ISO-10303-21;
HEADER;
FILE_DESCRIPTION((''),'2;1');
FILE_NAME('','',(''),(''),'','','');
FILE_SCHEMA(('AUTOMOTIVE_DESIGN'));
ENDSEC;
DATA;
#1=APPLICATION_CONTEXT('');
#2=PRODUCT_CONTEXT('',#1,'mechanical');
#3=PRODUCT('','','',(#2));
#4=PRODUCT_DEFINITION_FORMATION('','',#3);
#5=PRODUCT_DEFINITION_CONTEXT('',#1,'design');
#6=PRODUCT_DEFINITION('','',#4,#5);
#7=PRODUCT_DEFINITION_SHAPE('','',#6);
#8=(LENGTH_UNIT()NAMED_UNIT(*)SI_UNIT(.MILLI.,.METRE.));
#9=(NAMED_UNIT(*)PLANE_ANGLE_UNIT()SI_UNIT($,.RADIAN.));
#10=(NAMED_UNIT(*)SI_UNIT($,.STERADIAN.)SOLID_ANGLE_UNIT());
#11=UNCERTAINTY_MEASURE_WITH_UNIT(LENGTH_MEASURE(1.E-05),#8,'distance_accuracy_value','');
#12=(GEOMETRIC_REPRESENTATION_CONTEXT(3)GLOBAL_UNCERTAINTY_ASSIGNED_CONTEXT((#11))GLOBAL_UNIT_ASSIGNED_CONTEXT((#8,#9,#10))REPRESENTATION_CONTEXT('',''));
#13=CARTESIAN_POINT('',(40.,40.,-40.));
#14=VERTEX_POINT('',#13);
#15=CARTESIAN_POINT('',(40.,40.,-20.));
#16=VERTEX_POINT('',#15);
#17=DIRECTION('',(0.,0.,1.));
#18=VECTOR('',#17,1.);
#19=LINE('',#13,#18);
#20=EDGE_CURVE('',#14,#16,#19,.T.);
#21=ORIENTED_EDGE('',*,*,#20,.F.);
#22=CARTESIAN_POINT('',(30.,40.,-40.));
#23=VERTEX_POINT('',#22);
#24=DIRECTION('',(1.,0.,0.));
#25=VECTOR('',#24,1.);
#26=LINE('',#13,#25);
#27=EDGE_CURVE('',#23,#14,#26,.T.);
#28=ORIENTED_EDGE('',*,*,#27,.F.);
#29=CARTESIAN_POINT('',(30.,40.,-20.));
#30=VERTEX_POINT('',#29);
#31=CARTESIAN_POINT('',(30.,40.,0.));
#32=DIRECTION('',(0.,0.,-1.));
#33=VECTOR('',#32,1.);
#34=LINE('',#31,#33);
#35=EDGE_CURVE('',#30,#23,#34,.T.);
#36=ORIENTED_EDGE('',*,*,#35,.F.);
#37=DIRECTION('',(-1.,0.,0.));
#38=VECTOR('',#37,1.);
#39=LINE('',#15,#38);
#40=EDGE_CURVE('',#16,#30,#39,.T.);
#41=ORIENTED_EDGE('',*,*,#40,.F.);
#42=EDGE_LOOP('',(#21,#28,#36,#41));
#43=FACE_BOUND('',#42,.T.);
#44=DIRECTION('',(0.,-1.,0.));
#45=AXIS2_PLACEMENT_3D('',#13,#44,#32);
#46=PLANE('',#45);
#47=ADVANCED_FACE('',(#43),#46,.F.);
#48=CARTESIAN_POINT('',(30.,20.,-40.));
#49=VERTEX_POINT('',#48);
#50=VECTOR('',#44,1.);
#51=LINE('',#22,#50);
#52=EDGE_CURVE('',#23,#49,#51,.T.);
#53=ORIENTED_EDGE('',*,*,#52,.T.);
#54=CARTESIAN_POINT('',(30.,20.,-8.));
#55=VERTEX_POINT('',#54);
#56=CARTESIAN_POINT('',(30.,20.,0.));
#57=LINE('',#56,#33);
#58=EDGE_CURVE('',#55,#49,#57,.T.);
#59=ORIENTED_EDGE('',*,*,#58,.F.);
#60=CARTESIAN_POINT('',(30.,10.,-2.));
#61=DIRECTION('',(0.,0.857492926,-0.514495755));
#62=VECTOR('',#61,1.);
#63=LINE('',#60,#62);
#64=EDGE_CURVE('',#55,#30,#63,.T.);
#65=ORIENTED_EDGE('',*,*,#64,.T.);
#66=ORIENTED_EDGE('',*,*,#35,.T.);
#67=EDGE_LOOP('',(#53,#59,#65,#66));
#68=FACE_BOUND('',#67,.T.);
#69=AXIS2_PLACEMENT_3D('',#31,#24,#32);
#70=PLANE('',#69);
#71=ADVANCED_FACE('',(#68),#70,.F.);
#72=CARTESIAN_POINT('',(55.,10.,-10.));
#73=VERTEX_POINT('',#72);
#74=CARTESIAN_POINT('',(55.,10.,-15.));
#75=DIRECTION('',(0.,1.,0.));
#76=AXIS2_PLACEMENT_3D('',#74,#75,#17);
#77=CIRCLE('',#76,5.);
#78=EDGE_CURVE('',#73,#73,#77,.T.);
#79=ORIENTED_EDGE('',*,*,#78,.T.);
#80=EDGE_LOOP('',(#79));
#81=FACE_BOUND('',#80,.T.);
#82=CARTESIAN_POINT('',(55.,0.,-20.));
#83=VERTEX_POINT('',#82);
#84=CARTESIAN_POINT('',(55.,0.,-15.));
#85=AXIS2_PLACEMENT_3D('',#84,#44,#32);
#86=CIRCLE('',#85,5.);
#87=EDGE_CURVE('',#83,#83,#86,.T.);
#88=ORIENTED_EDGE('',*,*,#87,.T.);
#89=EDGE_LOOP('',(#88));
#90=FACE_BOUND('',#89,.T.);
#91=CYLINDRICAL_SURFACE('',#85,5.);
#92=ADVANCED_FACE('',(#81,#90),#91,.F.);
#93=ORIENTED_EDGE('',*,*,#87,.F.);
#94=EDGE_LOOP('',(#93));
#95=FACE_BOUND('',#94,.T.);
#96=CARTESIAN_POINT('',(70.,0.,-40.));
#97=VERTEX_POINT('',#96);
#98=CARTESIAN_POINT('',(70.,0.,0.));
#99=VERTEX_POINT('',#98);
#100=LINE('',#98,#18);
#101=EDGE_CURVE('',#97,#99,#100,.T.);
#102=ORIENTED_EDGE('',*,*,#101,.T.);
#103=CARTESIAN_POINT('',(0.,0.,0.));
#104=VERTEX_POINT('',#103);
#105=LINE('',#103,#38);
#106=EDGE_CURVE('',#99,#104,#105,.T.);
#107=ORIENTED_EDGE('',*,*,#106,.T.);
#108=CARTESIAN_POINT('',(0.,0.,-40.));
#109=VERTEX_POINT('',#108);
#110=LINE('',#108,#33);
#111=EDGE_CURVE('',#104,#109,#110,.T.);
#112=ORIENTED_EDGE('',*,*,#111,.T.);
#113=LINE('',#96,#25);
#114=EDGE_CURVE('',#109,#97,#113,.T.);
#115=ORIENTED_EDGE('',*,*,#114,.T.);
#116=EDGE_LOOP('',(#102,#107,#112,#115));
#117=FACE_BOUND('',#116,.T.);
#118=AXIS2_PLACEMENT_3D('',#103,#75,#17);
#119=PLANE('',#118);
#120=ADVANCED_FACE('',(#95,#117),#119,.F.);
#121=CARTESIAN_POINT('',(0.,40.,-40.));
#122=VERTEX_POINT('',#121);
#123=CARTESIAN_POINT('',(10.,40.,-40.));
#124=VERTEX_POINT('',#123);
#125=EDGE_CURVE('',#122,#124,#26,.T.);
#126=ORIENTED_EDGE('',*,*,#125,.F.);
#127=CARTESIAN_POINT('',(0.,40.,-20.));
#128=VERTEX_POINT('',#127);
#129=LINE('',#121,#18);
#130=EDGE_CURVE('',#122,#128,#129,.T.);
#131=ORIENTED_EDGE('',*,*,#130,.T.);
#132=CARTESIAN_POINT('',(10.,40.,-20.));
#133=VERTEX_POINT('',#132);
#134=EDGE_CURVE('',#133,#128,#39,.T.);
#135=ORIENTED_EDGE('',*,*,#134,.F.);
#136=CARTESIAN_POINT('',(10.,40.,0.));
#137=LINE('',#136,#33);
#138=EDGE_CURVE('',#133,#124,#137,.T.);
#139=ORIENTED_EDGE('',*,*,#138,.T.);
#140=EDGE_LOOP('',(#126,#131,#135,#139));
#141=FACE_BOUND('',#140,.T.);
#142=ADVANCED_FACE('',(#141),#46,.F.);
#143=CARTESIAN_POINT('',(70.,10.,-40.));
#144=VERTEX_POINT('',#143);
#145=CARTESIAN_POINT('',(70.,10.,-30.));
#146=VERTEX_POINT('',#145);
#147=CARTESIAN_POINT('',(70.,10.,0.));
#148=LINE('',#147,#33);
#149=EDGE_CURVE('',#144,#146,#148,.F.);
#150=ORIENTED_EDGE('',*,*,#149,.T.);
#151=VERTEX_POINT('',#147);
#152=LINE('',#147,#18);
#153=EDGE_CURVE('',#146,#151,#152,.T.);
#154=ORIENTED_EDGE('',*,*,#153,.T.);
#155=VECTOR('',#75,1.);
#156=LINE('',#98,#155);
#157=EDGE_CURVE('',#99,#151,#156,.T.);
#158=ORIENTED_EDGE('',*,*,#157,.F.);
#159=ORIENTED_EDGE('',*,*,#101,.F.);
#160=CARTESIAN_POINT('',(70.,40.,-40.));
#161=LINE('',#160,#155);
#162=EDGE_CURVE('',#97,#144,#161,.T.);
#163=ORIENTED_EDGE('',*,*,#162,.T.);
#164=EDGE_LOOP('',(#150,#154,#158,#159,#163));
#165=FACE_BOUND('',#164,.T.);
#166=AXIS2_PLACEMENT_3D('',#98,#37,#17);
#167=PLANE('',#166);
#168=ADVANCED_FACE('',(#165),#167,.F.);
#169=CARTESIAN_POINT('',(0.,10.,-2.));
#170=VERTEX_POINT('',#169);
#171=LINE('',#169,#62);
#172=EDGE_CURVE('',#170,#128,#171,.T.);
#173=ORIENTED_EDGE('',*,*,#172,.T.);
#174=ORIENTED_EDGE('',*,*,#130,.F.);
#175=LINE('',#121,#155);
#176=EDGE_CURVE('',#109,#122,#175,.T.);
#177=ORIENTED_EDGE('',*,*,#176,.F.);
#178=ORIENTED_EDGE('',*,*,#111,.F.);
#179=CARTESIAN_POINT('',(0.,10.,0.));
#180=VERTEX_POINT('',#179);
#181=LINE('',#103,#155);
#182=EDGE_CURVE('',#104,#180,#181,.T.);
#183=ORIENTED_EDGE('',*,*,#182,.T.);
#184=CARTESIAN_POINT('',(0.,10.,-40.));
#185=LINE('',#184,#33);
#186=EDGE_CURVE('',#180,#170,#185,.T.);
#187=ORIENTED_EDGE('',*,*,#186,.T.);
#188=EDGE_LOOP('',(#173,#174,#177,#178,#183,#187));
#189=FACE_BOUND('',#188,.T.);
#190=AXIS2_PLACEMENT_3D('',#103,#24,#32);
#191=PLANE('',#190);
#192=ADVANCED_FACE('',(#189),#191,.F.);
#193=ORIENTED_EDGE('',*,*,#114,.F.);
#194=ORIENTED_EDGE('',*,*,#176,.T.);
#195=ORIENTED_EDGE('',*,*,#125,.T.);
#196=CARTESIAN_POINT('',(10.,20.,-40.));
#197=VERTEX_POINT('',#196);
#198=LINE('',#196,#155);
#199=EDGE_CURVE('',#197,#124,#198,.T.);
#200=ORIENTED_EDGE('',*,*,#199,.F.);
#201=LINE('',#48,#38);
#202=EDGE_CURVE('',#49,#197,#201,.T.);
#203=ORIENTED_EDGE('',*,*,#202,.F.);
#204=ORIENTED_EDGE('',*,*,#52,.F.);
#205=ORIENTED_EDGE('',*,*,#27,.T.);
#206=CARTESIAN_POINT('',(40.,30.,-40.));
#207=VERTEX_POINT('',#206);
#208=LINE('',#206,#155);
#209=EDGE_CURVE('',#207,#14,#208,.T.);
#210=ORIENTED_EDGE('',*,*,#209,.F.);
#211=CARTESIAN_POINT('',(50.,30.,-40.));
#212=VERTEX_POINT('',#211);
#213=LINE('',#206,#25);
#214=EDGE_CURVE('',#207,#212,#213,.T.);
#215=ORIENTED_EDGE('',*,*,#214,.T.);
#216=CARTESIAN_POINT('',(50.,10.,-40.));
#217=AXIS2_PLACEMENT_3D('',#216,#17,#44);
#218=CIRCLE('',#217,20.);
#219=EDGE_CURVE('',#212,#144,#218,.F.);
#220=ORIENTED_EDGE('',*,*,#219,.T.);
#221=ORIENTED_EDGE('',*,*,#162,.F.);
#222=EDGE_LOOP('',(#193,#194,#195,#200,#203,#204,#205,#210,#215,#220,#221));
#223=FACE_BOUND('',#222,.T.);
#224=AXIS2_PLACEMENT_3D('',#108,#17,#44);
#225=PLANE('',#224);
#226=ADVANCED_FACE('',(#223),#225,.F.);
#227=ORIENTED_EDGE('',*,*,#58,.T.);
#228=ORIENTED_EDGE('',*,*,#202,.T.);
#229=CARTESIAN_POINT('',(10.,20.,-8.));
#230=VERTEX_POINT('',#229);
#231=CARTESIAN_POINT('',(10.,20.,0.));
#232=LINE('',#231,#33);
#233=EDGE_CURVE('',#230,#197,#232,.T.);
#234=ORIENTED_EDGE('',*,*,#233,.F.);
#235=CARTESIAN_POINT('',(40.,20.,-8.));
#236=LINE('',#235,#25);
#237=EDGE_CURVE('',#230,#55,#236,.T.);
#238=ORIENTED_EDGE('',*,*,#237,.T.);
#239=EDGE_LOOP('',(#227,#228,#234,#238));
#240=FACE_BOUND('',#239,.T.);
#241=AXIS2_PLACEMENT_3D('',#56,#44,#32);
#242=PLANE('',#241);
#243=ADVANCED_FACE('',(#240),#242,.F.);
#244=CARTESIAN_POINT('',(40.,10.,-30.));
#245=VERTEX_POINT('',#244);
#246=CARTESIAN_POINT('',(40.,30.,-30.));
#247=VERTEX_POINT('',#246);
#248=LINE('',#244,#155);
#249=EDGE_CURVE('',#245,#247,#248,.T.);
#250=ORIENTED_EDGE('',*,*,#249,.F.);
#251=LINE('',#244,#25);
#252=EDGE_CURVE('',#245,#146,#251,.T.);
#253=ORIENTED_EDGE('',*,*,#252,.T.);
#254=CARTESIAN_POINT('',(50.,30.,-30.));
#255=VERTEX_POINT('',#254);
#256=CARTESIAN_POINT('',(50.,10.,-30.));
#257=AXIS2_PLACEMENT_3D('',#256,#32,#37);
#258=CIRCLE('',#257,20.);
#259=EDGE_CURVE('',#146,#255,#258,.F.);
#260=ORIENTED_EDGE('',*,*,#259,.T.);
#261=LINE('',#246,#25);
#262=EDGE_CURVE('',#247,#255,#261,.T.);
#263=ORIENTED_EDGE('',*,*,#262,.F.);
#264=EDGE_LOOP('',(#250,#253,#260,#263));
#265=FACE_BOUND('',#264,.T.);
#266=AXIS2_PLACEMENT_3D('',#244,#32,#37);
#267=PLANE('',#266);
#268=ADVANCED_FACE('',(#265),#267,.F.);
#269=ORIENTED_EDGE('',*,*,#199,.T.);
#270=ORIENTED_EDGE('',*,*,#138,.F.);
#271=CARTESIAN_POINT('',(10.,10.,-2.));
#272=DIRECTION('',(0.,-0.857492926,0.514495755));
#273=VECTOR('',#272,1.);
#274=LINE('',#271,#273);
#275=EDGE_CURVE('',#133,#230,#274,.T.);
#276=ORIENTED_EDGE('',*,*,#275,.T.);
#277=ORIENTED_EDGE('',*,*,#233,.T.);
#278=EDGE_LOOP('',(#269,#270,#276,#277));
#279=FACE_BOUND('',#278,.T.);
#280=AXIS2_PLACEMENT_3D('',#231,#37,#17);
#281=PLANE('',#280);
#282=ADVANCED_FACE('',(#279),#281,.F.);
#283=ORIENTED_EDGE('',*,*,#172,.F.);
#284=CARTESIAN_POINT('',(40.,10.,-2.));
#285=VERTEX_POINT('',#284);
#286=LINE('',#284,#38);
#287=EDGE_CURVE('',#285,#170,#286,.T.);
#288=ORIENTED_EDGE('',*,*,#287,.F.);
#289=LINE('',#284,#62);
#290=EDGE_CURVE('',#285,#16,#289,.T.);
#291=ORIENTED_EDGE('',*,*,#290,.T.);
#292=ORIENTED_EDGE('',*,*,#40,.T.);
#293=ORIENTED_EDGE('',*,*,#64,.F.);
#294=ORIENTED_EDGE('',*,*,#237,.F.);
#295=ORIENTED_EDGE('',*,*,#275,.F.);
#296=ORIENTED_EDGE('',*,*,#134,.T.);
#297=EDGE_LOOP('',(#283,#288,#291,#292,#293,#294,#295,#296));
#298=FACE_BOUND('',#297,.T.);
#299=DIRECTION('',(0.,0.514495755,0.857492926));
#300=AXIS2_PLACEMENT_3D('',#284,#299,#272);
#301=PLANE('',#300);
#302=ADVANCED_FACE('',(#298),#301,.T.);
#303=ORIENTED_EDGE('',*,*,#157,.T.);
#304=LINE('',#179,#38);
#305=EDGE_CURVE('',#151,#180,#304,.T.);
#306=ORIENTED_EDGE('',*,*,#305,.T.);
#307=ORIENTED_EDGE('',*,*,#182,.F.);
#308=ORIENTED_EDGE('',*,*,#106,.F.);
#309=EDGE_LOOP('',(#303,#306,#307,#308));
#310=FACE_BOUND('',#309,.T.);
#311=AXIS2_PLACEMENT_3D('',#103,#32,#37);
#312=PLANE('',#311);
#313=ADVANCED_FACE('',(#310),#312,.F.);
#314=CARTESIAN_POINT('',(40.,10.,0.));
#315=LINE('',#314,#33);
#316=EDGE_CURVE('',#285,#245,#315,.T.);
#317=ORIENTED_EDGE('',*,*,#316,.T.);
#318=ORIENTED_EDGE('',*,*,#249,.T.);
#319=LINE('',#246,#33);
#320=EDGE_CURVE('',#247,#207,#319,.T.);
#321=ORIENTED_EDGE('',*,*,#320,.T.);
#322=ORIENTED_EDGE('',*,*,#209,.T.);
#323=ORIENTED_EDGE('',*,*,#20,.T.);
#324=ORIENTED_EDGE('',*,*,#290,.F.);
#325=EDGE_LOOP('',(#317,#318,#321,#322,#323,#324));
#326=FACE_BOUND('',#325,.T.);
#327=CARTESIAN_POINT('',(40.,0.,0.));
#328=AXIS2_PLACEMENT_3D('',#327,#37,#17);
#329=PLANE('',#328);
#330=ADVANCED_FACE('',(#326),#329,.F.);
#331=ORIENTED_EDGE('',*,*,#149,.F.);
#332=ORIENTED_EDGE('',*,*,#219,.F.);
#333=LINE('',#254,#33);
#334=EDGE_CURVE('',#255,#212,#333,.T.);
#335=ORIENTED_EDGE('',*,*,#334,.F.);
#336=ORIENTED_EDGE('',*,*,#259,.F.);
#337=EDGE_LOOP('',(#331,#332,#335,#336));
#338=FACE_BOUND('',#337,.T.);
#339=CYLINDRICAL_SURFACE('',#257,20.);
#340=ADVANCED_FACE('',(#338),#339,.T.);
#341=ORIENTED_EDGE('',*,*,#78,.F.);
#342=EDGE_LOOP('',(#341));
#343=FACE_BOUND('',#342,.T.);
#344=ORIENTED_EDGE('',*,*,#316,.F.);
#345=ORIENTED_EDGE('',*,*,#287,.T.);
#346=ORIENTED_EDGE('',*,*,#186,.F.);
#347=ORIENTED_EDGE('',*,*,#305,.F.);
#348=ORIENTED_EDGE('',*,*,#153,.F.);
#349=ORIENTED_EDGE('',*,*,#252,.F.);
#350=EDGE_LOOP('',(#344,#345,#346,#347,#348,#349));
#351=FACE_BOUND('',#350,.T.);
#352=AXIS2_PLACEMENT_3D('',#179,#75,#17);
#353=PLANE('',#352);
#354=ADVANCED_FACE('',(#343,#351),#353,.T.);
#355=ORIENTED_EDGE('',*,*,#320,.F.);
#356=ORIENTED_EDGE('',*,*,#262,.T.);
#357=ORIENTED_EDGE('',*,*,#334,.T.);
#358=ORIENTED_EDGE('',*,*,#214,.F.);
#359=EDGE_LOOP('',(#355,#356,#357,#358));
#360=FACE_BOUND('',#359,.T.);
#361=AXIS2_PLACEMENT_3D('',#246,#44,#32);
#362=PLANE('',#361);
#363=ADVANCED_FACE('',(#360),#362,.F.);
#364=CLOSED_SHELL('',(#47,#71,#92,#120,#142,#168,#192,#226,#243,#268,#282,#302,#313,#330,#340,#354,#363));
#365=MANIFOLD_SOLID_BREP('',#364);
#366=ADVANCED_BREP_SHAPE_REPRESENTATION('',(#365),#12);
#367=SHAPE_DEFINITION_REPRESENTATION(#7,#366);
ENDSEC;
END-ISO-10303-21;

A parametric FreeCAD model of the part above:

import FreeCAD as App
import Part
import Sketcher

V = App.Vector
Q = App.Units.Quantity


def edges_at(feature, points):
    """Names of the edges that pass closest to the given points."""
    edges = feature.Shape.Edges
    near = lambda p: min(range(len(edges)), key=lambda i: edges[i].distToShape(Part.Vertex(*p))[0])
    return sorted({f"Edge{near(p) + 1}" for p in points})

doc = App.newDocument("Part")
body = doc.addObject("PartDesign::Body", "Body")

sketch1 = body.newObject("Sketcher::SketchObject", "Sketch")
sketch1.AttachmentSupport = (doc.getObject("YZ_Plane"), [""])
sketch1.MapMode = "FlatFace"
sketch1.addGeometry(Part.LineSegment(V(10, -2, 0), V(40, -20, 0)), False)
sketch1.addGeometry(Part.LineSegment(V(40, -20, 0), V(10, -20, 0)), False)
sketch1.addGeometry(Part.LineSegment(V(10, -20, 0), V(10, -2, 0)), False)
sketch1.addConstraint(Sketcher.Constraint("Coincident", 0, 2, 1, 1))
sketch1.addConstraint(Sketcher.Constraint("Coincident", 1, 2, 2, 1))
sketch1.addConstraint(Sketcher.Constraint("Coincident", 2, 2, 0, 1))
sketch1.addConstraint(Sketcher.Constraint("Horizontal", 1))
sketch1.addConstraint(Sketcher.Constraint("Vertical", 2))
sketch1.addConstraint(Sketcher.Constraint("DistanceX", 1, 2, 1, 1, Q("30 mm")))
sketch1.addConstraint(Sketcher.Constraint("DistanceY", 2, 1, 2, 2, Q("18 mm")))
sketch1.addConstraint(Sketcher.Constraint("DistanceX", -1, 1, 0, 2, Q("40 mm")))
sketch1.addConstraint(Sketcher.Constraint("DistanceY", 0, 2, -1, 1, Q("20 mm")))
pad1 = body.newObject("PartDesign::Pad", "Pad")
pad1.Profile = sketch1
pad1.Length = 40

sketch2 = body.newObject("Sketcher::SketchObject", "Sketch001")
sketch2.AttachmentSupport = (doc.getObject("XY_Plane"), [""])
sketch2.MapMode = "FlatFace"
sketch2.AttachmentOffset = App.Placement(V(0, 0, -20), App.Rotation())
sketch2.addGeometry(Part.LineSegment(V(40, 40, 0), V(40, 10, 0)), False)
sketch2.addGeometry(Part.LineSegment(V(40, 10, 0), V(0, 10, 0)), False)
sketch2.addGeometry(Part.LineSegment(V(0, 10, 0), V(0, 40, 0)), False)
sketch2.addGeometry(Part.LineSegment(V(0, 40, 0), V(40, 40, 0)), False)
sketch2.addConstraint(Sketcher.Constraint("Coincident", 0, 2, 1, 1))
sketch2.addConstraint(Sketcher.Constraint("Coincident", 1, 2, 2, 1))
sketch2.addConstraint(Sketcher.Constraint("Coincident", 2, 2, 3, 1))
sketch2.addConstraint(Sketcher.Constraint("Coincident", 3, 2, 0, 1))
sketch2.addConstraint(Sketcher.Constraint("Vertical", 0))
sketch2.addConstraint(Sketcher.Constraint("Horizontal", 1))
sketch2.addConstraint(Sketcher.Constraint("Vertical", 2))
sketch2.addConstraint(Sketcher.Constraint("Horizontal", 3))
sketch2.addConstraint(Sketcher.Constraint("PointOnObject", 1, 2, -2))
sketch2.addConstraint(Sketcher.Constraint("DistanceX", 1, 2, 1, 1, Q("40 mm")))
sketch2.addConstraint(Sketcher.Constraint("DistanceY", 0, 2, 0, 1, Q("30 mm")))
sketch2.addConstraint(Sketcher.Constraint("DistanceY", -1, 1, 0, 2, Q("10 mm")))
pad2 = body.newObject("PartDesign::Pad", "Pad001")
pad2.Profile = sketch2
pad2.Length = 20
pad2.Reversed = True

sketch3 = body.newObject("Sketcher::SketchObject", "Sketch002")
sketch3.AttachmentSupport = (doc.getObject("YZ_Plane"), [""])
sketch3.MapMode = "FlatFace"
sketch3.AttachmentOffset = App.Placement(V(0, 0, 40), App.Rotation())
sketch3.addGeometry(Part.LineSegment(V(10, 0, 0), V(10, -40, 0)), False)
sketch3.addGeometry(Part.LineSegment(V(10, -40, 0), V(40, -40, 0)), False)
sketch3.addGeometry(Part.LineSegment(V(40, -40, 0), V(40, -20, 0)), False)
sketch3.addGeometry(Part.LineSegment(V(40, -20, 0), V(10, 0, 0)), False)
sketch3.addConstraint(Sketcher.Constraint("Coincident", 0, 2, 1, 1))
sketch3.addConstraint(Sketcher.Constraint("Coincident", 1, 2, 2, 1))
sketch3.addConstraint(Sketcher.Constraint("Coincident", 2, 2, 3, 1))
sketch3.addConstraint(Sketcher.Constraint("Coincident", 3, 2, 0, 1))
sketch3.addConstraint(Sketcher.Constraint("Vertical", 0))
sketch3.addConstraint(Sketcher.Constraint("Horizontal", 1))
sketch3.addConstraint(Sketcher.Constraint("Vertical", 2))
sketch3.addConstraint(Sketcher.Constraint("PointOnObject", 3, 2, -1))
sketch3.addConstraint(Sketcher.Constraint("DistanceX", 1, 1, 1, 2, Q("30 mm")))
sketch3.addConstraint(Sketcher.Constraint("DistanceY", 0, 2, 0, 1, Q("40 mm")))
sketch3.addConstraint(Sketcher.Constraint("DistanceY", 2, 1, 2, 2, Q("20 mm")))
sketch3.addConstraint(Sketcher.Constraint("DistanceX", -1, 1, 0, 2, Q("10 mm")))
pad3 = body.newObject("PartDesign::Pad", "Pad002")
pad3.Profile = sketch3
pad3.Length = 30

sketch4 = body.newObject("Sketcher::SketchObject", "Sketch003")
sketch4.AttachmentSupport = (doc.getObject("YZ_Plane"), [""])
sketch4.MapMode = "FlatFace"
sketch4.AttachmentOffset = App.Placement(V(0, 0, 70), App.Rotation())
sketch4.addGeometry(Part.LineSegment(V(40, -20, 0), V(10, 0, 0)), False)
sketch4.addGeometry(Part.LineSegment(V(10, 0, 0), V(10, -30, 0)), False)
sketch4.addGeometry(Part.LineSegment(V(10, -30, 0), V(30, -30, 0)), False)
sketch4.addGeometry(Part.LineSegment(V(30, -30, 0), V(30, -40, 0)), False)
sketch4.addGeometry(Part.LineSegment(V(30, -40, 0), V(40, -40, 0)), False)
sketch4.addGeometry(Part.LineSegment(V(40, -40, 0), V(40, -20, 0)), False)
sketch4.addConstraint(Sketcher.Constraint("Coincident", 0, 2, 1, 1))
sketch4.addConstraint(Sketcher.Constraint("Coincident", 1, 2, 2, 1))
sketch4.addConstraint(Sketcher.Constraint("Coincident", 2, 2, 3, 1))
sketch4.addConstraint(Sketcher.Constraint("Coincident", 3, 2, 4, 1))
sketch4.addConstraint(Sketcher.Constraint("Coincident", 4, 2, 5, 1))
sketch4.addConstraint(Sketcher.Constraint("Coincident", 5, 2, 0, 1))
sketch4.addConstraint(Sketcher.Constraint("Vertical", 1))
sketch4.addConstraint(Sketcher.Constraint("Horizontal", 2))
sketch4.addConstraint(Sketcher.Constraint("Vertical", 3))
sketch4.addConstraint(Sketcher.Constraint("Horizontal", 4))
sketch4.addConstraint(Sketcher.Constraint("Vertical", 5))
sketch4.addConstraint(Sketcher.Constraint("PointOnObject", 0, 2, -1))
sketch4.addConstraint(Sketcher.Constraint("Equal", 4, 3))
sketch4.addConstraint(Sketcher.Constraint("Equal", 2, 5))
sketch4.addConstraint(Sketcher.Constraint("DistanceX", 2, 1, 2, 2, Q("20 mm")))
sketch4.addConstraint(Sketcher.Constraint("DistanceX", 4, 1, 4, 2, Q("10 mm")))
sketch4.addConstraint(Sketcher.Constraint("DistanceY", 1, 2, 1, 1, Q("30 mm")))
sketch4.addConstraint(Sketcher.Constraint("DistanceX", -1, 1, 0, 2, Q("10 mm")))
pocket1 = body.newObject("PartDesign::Pocket", "Pocket")
pocket1.Profile = sketch4
pocket1.Length = 30

sketch5 = body.newObject("Sketcher::SketchObject", "Sketch004")
sketch5.AttachmentSupport = (doc.getObject("XZ_Plane"), [""])
sketch5.MapMode = "FlatFace"
sketch5.AttachmentOffset = App.Placement(V(0, 0, -10), App.Rotation())
sketch5.addGeometry(Part.LineSegment(V(0, 0, 0), V(0, -40, 0)), False)
sketch5.addGeometry(Part.LineSegment(V(0, -40, 0), V(70, -40, 0)), False)
sketch5.addGeometry(Part.LineSegment(V(70, -40, 0), V(70, 0, 0)), False)
sketch5.addGeometry(Part.LineSegment(V(70, 0, 0), V(0, 0, 0)), False)
sketch5.addConstraint(Sketcher.Constraint("Coincident", 0, 2, 1, 1))
sketch5.addConstraint(Sketcher.Constraint("Coincident", 1, 2, 2, 1))
sketch5.addConstraint(Sketcher.Constraint("Coincident", 2, 2, 3, 1))
sketch5.addConstraint(Sketcher.Constraint("Coincident", 3, 2, 0, 1))
sketch5.addConstraint(Sketcher.Constraint("Vertical", 0))
sketch5.addConstraint(Sketcher.Constraint("Horizontal", 1))
sketch5.addConstraint(Sketcher.Constraint("Vertical", 2))
sketch5.addConstraint(Sketcher.Constraint("Horizontal", 3))
sketch5.addConstraint(Sketcher.Constraint("Coincident", 3, 2, -1, 1))
sketch5.addConstraint(Sketcher.Constraint("DistanceX", 1, 1, 1, 2, Q("70 mm")))
sketch5.addConstraint(Sketcher.Constraint("DistanceY", 0, 2, 0, 1, Q("40 mm")))
pad4 = body.newObject("PartDesign::Pad", "Pad003")
pad4.Profile = sketch5
pad4.Length = 10

sketch6 = body.newObject("Sketcher::SketchObject", "Sketch005")
sketch6.AttachmentSupport = (doc.getObject("XY_Plane"), [""])
sketch6.MapMode = "FlatFace"
sketch6.AttachmentOffset = App.Placement(V(0, 0, -40), App.Rotation())
sketch6.addGeometry(Part.LineSegment(V(30, 40, 0), V(30, 20, 0)), False)
sketch6.addGeometry(Part.LineSegment(V(30, 20, 0), V(10, 20, 0)), False)
sketch6.addGeometry(Part.LineSegment(V(10, 20, 0), V(10, 40, 0)), False)
sketch6.addGeometry(Part.LineSegment(V(10, 40, 0), V(30, 40, 0)), False)
sketch6.addConstraint(Sketcher.Constraint("Coincident", 0, 2, 1, 1))
sketch6.addConstraint(Sketcher.Constraint("Coincident", 1, 2, 2, 1))
sketch6.addConstraint(Sketcher.Constraint("Coincident", 2, 2, 3, 1))
sketch6.addConstraint(Sketcher.Constraint("Coincident", 3, 2, 0, 1))
sketch6.addConstraint(Sketcher.Constraint("Vertical", 0))
sketch6.addConstraint(Sketcher.Constraint("Horizontal", 1))
sketch6.addConstraint(Sketcher.Constraint("Vertical", 2))
sketch6.addConstraint(Sketcher.Constraint("Horizontal", 3))
sketch6.addConstraint(Sketcher.Constraint("Equal", 3, 0))
sketch6.addConstraint(Sketcher.Constraint("DistanceX", 1, 2, 1, 1, Q("20 mm")))
sketch6.addConstraint(Sketcher.Constraint("DistanceX", -1, 1, 0, 2, Q("30 mm")))
sketch6.addConstraint(Sketcher.Constraint("DistanceY", -1, 1, 0, 2, Q("20 mm")))
pocket2 = body.newObject("PartDesign::Pocket", "Pocket001")
pocket2.Profile = sketch6
pocket2.Type = "ThroughAll"
pocket2.Reversed = True

sketch7 = body.newObject("Sketcher::SketchObject", "Sketch006")
sketch7.AttachmentSupport = (doc.getObject("XZ_Plane"), [""])
sketch7.MapMode = "FlatFace"
sketch7.addGeometry(Part.Circle(V(55, -15, 0), V(0, 0, 1), 5), False)
sketch7.addConstraint(Sketcher.Constraint("Diameter", 0, Q("10 mm")))
sketch7.addConstraint(Sketcher.Constraint("DistanceX", -1, 1, 0, 3, Q("55 mm")))
sketch7.addConstraint(Sketcher.Constraint("DistanceY", 0, 3, -1, 1, Q("15 mm")))
doc.recompute()
hole = body.newObject("PartDesign::Hole", "Hole")
hole.Profile = sketch7
hole.ThreadType = "None"
hole.Diameter = 10
hole.DepthType = "Dimension"
hole.Depth = 40
hole.DrillPoint = "Flat"
doc.recompute()

fillet = body.newObject("PartDesign::Fillet", "Fillet")
fillet.Base = (hole, edges_at(hole, [(70, 30, -35)]))
fillet.Radius = 20

doc.recompute()
